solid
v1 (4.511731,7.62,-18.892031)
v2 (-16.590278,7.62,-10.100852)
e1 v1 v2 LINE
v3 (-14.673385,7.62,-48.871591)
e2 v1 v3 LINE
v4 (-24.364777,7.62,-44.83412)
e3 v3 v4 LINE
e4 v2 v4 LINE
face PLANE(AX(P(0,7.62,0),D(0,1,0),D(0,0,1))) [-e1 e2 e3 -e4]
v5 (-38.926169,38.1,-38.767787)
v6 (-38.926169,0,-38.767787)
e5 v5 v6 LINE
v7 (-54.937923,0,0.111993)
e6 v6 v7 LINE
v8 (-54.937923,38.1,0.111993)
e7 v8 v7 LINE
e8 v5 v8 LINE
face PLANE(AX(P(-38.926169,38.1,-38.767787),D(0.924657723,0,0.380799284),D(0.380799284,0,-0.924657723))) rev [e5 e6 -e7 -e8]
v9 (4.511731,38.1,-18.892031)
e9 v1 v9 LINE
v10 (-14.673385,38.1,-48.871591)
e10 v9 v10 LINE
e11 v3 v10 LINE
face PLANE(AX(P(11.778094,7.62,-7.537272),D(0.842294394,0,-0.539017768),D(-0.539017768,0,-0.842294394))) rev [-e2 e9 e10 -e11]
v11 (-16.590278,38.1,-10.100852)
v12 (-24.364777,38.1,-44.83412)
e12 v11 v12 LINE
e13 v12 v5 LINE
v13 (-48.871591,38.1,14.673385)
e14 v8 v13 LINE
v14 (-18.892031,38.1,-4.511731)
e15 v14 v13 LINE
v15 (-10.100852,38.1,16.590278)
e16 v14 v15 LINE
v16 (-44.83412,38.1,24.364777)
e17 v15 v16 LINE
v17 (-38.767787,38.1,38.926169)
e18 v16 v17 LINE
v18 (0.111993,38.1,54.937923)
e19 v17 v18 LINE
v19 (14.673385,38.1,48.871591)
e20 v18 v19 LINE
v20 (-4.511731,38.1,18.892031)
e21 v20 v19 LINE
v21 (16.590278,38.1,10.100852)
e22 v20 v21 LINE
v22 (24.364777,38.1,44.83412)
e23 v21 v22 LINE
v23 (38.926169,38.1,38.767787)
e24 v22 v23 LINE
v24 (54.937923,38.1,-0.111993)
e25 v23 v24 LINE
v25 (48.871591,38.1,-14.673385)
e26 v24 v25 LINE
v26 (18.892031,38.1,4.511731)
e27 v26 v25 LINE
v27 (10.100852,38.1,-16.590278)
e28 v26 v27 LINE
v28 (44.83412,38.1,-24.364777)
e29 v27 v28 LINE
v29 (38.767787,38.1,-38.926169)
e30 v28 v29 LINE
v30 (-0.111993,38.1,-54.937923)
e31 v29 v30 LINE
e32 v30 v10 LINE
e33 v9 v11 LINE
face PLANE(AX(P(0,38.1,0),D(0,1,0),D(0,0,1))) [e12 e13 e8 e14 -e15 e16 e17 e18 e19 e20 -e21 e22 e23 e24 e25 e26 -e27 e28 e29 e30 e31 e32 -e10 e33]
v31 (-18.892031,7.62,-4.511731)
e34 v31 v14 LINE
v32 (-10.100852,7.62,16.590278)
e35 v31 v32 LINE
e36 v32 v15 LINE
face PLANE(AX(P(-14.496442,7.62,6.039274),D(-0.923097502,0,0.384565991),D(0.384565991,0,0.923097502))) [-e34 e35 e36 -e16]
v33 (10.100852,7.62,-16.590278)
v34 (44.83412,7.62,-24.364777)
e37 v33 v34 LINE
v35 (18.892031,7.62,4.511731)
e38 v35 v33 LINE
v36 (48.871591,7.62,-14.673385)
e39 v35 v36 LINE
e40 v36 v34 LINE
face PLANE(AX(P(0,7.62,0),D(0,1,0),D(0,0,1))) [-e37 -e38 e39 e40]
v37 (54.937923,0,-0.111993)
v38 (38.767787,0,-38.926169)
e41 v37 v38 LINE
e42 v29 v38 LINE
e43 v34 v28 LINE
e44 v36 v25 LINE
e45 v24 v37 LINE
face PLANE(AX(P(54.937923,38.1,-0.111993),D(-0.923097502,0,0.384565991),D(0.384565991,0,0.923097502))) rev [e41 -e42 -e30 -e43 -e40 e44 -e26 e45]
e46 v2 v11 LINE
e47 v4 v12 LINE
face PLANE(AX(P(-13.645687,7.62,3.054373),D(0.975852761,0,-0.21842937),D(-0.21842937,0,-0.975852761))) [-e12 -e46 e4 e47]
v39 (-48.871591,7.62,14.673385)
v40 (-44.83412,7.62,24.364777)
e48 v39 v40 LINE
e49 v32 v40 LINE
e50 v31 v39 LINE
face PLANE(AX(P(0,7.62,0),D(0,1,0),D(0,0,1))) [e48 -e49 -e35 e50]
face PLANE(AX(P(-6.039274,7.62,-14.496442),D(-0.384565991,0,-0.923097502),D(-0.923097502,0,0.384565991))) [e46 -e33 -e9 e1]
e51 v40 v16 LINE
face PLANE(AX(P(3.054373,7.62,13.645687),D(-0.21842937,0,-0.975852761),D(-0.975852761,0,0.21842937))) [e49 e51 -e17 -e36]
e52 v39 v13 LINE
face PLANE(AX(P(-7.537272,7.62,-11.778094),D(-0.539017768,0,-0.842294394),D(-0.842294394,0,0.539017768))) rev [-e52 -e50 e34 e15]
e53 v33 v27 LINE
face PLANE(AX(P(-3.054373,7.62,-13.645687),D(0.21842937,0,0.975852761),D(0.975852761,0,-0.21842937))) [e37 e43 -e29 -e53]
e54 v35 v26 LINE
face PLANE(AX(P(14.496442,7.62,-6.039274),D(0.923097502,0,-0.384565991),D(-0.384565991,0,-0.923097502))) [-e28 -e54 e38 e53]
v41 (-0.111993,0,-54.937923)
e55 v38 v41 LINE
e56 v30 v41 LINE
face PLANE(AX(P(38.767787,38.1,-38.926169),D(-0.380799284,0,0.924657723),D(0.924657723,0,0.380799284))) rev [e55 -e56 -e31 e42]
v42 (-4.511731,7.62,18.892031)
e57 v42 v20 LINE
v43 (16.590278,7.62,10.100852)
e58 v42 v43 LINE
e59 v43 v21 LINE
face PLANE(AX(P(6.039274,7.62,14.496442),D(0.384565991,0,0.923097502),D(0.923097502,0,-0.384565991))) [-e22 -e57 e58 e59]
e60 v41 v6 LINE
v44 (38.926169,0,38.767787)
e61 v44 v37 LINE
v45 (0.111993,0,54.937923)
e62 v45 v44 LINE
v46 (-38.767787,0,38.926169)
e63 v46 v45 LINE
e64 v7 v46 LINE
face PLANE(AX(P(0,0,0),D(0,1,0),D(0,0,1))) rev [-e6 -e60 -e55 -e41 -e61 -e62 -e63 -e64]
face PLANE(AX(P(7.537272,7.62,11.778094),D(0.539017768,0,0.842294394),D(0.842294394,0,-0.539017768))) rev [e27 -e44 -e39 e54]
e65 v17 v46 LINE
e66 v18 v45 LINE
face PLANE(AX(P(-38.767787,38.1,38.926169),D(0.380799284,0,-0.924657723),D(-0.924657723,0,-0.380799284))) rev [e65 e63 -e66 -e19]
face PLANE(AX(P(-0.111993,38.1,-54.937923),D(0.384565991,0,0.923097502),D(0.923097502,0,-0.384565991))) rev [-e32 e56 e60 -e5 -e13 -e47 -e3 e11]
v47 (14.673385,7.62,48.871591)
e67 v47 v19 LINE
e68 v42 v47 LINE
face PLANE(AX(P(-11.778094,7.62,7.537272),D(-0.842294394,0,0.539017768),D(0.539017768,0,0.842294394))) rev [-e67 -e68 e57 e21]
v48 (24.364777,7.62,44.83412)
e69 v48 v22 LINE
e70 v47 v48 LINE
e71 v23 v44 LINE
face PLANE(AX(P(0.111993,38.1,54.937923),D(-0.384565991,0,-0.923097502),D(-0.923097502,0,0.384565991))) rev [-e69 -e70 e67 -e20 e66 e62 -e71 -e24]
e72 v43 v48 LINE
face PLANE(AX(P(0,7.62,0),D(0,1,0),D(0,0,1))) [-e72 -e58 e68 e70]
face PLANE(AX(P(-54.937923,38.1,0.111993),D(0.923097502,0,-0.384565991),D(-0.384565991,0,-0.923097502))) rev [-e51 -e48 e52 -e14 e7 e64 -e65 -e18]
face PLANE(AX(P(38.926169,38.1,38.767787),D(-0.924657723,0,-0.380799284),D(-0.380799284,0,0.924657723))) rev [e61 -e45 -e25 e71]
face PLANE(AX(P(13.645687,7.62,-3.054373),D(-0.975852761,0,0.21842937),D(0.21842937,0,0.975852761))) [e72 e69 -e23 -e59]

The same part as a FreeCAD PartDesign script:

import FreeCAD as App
import Part
import Sketcher

V = App.Vector
Q = App.Units.Quantity


def add_polygon(sketch, points):
    """Adds a closed chain of lines whose ends are joined by coincident constraints."""
    first, n = sketch.GeometryCount, len(points)
    for a, b in zip(points, points[1:] + points[:1]):
        sketch.addGeometry(Part.LineSegment(App.Vector(*a, 0), App.Vector(*b, 0)), False)
    for i in range(n):
        sketch.addConstraint(Sketcher.Constraint("Coincident", first + i, 2, first + (i + 1) % n, 1))

doc = App.newDocument("Part")
body = doc.addObject("PartDesign::Body", "Body")

sketch1 = body.newObject("Sketcher::SketchObject", "Sketch")
sketch1.AttachmentSupport = (doc.getObject("XZ_Plane"), [""])
sketch1.MapMode = "FlatFace"
add_polygon(sketch1, [(0, -55), (-39, -39), (-55, 0), (-39, 39), (0, 55), (39, 39), (55, 0), (39, -39)])
sketch1.addConstraint([
    Sketcher.Constraint("Symmetric", 0, 2, 4, 2, -1, 1),
    Sketcher.Constraint("Symmetric", 1, 2, 5, 2, -1, 1),
    Sketcher.Constraint("Symmetric", 2, 2, 6, 2, -1, 1),
    Sketcher.Constraint("Symmetric", 3, 2, 7, 2, -1, 1),
    Sketcher.Constraint("Perpendicular", 0, 2),
    Sketcher.Constraint("Perpendicular", 1, 3),
    Sketcher.Constraint("Equal", 0, 1),
    Sketcher.Constraint("Equal", 1, 2),
    Sketcher.Constraint("Equal", 2, 3),
    Sketcher.Constraint("DistanceY", 0, 2, 1, 2, Q("1.5307 in")),
    Sketcher.Constraint("DistanceX", 0, 2, -1, 1, 38.926169),
    Sketcher.Constraint("DistanceY", 1, 2, 3, 2, 54.825931),
])
pad1 = body.newObject("PartDesign::Pad", "Pad")
pad1.Profile = sketch1
pad1.Length = Q("1.5 in")
pad1.Reversed = True

sketch2 = body.newObject("Sketcher::SketchObject", "Sketch001")
sketch2.AttachmentSupport = (doc.getObject("XZ_Plane"), [""])
sketch2.MapMode = "FlatFace"
sketch2.AttachmentOffset = App.Placement(V(0, 0, -1.5 * 25.4), App.Rotation())
add_polygon(sketch2, [(17, 10), (-5, 19), (15, 49), (24, 45)])
add_polygon(sketch2, [(-10, 17), (-19, -5), (-49, 15), (-45, 24)])
add_polygon(sketch2, [(-17, -10), (5, -19), (-15, -49), (-24, -45)])
add_polygon(sketch2, [(10, -17), (19, 5), (49, -15), (45, -24)])
sketch2.addConstraint([
    Sketcher.Constraint("Symmetric", 0, 2, 8, 2, -1, 1),
    Sketcher.Constraint("Symmetric", 1, 2, 9, 2, -1, 1),
    Sketcher.Constraint("Symmetric", 2, 2, 10, 2, -1, 1),
    Sketcher.Constraint("Symmetric", 3, 2, 11, 2, -1, 1),
    Sketcher.Constraint("Symmetric", 4, 2, 12, 2, -1, 1),
    Sketcher.Constraint("Symmetric", 5, 2, 13, 2, -1, 1),
    Sketcher.Constraint("Symmetric", 6, 2, 14, 2, -1, 1),
    Sketcher.Constraint("Symmetric", 7, 2, 15, 2, -1, 1),
    Sketcher.Constraint("Parallel", 0, 2),
    Sketcher.Constraint("Perpendicular", 2, 4),
    Sketcher.Constraint("Perpendicular", 1, 5),
    Sketcher.Constraint("Parallel", 4, 6),
    Sketcher.Constraint("Perpendicular", 3, 7),
    Sketcher.Constraint("Equal", 1, 3),
    Sketcher.Constraint("Equal", 0, 4),
    Sketcher.Constraint("Equal", 3, 5),
    Sketcher.Constraint("Distance", 0, Q("0.9 in")),
    Sketcher.Constraint("DistanceX", 3, 2, 2, 2, 7.774498),
    Sketcher.Constraint("DistanceX", 4, 2, 0, 2, 14.3803),
    Sketcher.Constraint("DistanceY", 8, 2, 4, 2, 14.3803),
    Sketcher.Constraint("DistanceX", 0, 2, -1, 1, 4.511731),
    Sketcher.Constraint("DistanceY", -1, 1, 0, 2, 18.892031),
    Sketcher.Constraint("DistanceY", -1, 1, 1, 2, 48.871591),
    Sketcher.Constraint("DistanceY", -1, 1, 2, 2, 44.83412),
])
pocket1 = body.newObject("PartDesign::Pocket", "Pocket")
pocket1.Profile = sketch2
pocket1.Length = Q("1.2 in")
pocket1.Reversed = True

doc.recompute()
